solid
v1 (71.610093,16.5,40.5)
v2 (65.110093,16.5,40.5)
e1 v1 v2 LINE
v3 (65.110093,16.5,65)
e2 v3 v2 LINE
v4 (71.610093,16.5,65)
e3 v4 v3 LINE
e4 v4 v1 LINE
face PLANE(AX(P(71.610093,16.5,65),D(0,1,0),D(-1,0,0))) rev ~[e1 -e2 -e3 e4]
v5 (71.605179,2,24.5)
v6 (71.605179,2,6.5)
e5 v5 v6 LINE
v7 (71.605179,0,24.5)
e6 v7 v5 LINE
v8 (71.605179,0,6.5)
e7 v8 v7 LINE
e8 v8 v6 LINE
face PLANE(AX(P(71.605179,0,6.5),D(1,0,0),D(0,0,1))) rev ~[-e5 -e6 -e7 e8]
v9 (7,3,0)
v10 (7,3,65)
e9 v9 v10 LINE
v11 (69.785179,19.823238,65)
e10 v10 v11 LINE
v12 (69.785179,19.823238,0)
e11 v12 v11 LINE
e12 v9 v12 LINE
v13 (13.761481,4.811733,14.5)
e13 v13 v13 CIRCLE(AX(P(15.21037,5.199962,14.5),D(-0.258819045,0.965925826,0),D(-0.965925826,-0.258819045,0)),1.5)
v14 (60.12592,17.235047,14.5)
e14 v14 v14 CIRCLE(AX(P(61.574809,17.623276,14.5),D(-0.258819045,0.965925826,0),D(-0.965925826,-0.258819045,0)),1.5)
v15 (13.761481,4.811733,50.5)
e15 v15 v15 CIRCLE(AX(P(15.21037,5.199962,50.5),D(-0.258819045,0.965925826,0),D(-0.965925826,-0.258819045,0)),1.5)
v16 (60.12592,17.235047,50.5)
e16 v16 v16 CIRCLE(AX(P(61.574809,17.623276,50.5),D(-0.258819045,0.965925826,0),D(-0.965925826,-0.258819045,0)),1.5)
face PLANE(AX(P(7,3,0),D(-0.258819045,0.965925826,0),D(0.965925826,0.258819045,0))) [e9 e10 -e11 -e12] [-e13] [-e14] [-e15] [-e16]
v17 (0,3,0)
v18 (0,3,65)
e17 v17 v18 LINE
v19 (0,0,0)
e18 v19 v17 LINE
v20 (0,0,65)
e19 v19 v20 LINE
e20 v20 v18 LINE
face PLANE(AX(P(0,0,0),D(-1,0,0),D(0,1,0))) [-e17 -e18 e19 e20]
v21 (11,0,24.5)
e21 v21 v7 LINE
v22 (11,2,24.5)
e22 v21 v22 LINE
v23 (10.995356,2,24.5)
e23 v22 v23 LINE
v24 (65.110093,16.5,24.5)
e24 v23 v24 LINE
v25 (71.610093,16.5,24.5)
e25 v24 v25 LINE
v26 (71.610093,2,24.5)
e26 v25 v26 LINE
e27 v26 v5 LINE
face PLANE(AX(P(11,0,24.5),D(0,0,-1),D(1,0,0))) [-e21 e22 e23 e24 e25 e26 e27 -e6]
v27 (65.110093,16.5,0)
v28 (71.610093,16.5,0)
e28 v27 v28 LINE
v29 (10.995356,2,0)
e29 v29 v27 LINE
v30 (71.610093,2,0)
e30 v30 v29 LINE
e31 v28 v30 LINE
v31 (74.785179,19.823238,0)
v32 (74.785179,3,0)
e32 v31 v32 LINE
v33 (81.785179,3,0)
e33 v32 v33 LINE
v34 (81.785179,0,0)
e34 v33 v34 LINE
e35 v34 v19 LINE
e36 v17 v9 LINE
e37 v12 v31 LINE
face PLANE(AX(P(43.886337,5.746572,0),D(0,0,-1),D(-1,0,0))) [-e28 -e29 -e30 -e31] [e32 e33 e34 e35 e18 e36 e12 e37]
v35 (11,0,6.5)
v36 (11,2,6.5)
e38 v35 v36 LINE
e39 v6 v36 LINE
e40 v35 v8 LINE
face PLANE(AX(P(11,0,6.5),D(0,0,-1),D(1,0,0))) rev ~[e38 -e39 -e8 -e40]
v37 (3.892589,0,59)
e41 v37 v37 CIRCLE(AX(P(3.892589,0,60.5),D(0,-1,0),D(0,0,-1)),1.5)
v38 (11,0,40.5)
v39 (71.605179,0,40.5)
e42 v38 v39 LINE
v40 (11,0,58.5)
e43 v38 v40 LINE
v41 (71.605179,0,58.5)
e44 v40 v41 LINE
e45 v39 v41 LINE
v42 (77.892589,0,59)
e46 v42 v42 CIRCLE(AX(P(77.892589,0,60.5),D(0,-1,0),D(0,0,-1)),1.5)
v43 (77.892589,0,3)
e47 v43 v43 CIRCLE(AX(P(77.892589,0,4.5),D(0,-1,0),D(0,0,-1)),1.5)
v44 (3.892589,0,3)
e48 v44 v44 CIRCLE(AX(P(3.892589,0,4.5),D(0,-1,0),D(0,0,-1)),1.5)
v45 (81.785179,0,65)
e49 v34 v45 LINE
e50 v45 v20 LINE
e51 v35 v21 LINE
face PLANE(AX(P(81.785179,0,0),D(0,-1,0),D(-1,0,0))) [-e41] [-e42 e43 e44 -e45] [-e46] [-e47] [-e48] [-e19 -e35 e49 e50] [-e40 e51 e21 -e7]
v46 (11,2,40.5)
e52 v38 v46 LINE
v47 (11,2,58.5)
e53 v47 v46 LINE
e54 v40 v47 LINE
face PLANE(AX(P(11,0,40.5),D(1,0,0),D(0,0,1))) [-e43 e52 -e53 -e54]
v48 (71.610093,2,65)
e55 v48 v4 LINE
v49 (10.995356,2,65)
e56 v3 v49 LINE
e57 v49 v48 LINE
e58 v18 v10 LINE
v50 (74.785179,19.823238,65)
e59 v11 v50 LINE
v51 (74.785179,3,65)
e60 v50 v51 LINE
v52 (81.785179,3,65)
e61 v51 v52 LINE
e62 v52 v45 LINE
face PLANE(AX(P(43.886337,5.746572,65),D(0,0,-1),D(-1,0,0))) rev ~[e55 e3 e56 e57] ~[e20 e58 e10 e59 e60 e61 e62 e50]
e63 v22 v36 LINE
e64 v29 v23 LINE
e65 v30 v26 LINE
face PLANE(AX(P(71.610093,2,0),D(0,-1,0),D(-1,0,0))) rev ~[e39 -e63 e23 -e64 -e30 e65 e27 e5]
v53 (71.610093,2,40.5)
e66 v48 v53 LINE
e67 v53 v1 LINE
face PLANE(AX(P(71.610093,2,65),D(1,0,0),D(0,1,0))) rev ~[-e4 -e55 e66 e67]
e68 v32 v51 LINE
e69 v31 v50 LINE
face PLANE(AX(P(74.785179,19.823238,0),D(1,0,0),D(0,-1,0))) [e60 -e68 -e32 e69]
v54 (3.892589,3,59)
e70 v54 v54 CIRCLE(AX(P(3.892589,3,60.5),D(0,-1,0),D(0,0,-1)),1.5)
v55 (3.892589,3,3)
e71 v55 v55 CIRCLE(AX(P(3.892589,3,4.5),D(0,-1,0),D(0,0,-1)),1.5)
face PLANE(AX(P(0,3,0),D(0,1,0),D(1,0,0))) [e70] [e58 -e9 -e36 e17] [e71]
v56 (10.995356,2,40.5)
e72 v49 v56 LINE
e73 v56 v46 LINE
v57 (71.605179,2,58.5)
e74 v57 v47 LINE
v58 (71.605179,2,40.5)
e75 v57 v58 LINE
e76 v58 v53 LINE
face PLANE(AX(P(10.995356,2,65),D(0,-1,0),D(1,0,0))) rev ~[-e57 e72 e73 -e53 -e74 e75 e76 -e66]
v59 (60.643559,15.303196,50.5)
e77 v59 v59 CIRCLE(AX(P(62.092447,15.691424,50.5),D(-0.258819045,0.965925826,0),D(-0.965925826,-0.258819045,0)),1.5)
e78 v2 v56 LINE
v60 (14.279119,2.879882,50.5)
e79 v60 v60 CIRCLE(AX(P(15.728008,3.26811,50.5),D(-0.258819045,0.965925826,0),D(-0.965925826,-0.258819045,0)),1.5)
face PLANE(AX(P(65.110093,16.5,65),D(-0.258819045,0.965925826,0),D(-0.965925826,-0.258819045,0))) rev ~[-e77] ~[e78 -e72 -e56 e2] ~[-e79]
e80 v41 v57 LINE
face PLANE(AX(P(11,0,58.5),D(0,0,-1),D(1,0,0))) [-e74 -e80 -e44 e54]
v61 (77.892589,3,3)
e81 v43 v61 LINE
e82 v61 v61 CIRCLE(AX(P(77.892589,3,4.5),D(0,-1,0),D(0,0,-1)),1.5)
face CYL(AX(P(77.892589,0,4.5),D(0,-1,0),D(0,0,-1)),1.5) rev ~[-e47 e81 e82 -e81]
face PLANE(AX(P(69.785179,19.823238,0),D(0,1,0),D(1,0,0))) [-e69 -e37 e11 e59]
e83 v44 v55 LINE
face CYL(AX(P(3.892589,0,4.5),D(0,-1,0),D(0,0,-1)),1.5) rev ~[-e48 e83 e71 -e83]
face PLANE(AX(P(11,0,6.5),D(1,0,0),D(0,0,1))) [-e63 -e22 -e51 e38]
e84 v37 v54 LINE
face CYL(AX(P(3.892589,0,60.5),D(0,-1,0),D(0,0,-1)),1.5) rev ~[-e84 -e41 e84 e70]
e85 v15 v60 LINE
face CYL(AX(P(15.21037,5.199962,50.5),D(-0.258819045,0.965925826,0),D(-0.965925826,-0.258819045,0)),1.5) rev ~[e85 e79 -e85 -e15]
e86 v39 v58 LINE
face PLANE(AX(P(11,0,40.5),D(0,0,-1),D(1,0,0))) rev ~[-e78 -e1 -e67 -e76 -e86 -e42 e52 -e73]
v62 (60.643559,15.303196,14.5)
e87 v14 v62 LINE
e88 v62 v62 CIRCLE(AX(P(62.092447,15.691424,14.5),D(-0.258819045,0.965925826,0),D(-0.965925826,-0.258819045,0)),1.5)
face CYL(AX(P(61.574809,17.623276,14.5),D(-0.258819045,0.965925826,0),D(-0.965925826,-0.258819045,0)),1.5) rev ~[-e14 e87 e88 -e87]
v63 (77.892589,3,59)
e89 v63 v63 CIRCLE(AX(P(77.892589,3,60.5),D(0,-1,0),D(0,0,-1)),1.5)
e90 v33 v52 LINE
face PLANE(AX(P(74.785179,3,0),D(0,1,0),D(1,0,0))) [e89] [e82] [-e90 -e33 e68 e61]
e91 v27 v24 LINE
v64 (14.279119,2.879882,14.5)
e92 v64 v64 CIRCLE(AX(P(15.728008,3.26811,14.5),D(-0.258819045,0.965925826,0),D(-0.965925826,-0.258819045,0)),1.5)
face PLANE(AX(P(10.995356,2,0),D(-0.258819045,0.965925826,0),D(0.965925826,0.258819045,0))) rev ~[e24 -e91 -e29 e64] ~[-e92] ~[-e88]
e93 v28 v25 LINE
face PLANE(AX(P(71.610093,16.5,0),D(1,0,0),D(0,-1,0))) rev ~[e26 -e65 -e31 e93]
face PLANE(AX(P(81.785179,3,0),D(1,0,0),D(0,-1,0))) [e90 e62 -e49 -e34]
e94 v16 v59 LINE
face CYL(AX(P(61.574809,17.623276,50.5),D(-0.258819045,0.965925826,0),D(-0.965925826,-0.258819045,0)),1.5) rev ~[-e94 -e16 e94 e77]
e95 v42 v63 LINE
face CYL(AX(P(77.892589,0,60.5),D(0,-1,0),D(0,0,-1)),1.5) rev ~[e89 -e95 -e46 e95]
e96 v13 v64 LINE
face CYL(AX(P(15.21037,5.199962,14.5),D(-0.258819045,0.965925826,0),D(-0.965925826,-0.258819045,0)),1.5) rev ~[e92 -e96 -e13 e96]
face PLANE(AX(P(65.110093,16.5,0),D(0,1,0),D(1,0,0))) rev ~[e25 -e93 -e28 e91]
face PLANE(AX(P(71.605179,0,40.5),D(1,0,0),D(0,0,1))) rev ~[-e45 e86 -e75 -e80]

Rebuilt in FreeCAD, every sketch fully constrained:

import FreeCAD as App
import Part
import Sketcher

V = App.Vector
Q = App.Units.Quantity

doc = App.newDocument("Part")
body = doc.addObject("PartDesign::Body", "Body")

sketch1 = body.newObject("Sketcher::SketchObject", "Sketch")
sketch1.AttachmentSupport = (doc.getObject("XY_Plane"), [""])
sketch1.MapMode = "FlatFace"
sketch1.addGeometry(Part.LineSegment(V(0, 3, 0), V(0, 0, 0)), False)
sketch1.addGeometry(Part.LineSegment(V(0, 0, 0), V(81.8, 0, 0)), False)
sketch1.addGeometry(Part.LineSegment(V(81.8, 0, 0), V(81.8, 3, 0)), False)
sketch1.addGeometry(Part.LineSegment(V(81.8, 3, 0), V(74.8, 3, 0)), False)
sketch1.addGeometry(Part.LineSegment(V(74.8, 3, 0), V(74.8, 19.8, 0)), False)
sketch1.addGeometry(Part.LineSegment(V(74.8, 19.8, 0), V(69.8, 19.8, 0)), False)
sketch1.addGeometry(Part.LineSegment(V(69.8, 19.8, 0), V(7, 3, 0)), False)
sketch1.addGeometry(Part.LineSegment(V(7, 3, 0), V(0, 3, 0)), False)
sketch1.addConstraint(Sketcher.Constraint("Coincident", 0, 2, 1, 1))
sketch1.addConstraint(Sketcher.Constraint("Coincident", 1, 2, 2, 1))
sketch1.addConstraint(Sketcher.Constraint("Coincident", 2, 2, 3, 1))
sketch1.addConstraint(Sketcher.Constraint("Coincident", 3, 2, 4, 1))
sketch1.addConstraint(Sketcher.Constraint("Coincident", 4, 2, 5, 1))
sketch1.addConstraint(Sketcher.Constraint("Coincident", 5, 2, 6, 1))
sketch1.addConstraint(Sketcher.Constraint("Coincident", 6, 2, 7, 1))
sketch1.addConstraint(Sketcher.Constraint("Coincident", 7, 2, 0, 1))
sketch1.addConstraint(Sketcher.Constraint("Vertical", 0))
sketch1.addConstraint(Sketcher.Constraint("Horizontal", 1))
sketch1.addConstraint(Sketcher.Constraint("Vertical", 2))
sketch1.addConstraint(Sketcher.Constraint("Horizontal", 3))
sketch1.addConstraint(Sketcher.Constraint("Vertical", 4))
sketch1.addConstraint(Sketcher.Constraint("Horizontal", 5))
sketch1.addConstraint(Sketcher.Constraint("Horizontal", 7))
sketch1.addConstraint(Sketcher.Constraint("Coincident", 0, 2, -1, 1))
sketch1.addConstraint(Sketcher.Constraint("Horizontal", 3, 2, 6, 2))
sketch1.addConstraint(Sketcher.Constraint("Equal", 3, 7))
sketch1.addConstraint(Sketcher.Constraint("DistanceX", 3, 2, 3, 1, 7.0))
sketch1.addConstraint(Sketcher.Constraint("DistanceX", 5, 2, 5, 1, 5.0))
sketch1.addConstraint(Sketcher.Constraint("DistanceY", 0, 2, 0, 1, 3.0))
sketch1.addConstraint(Sketcher.Constraint("Angle", 6, Q("-165 deg")))
sketch1.addConstraint(Sketcher.Constraint("Distance", 6, 65.0))
pad1 = body.newObject("PartDesign::Pad", "Pad")
pad1.Profile = sketch1
pad1.Length = 65

sketch2 = body.newObject("Sketcher::SketchObject", "Sketch001")
sketch2.AttachmentSupport = (doc.getObject("XY_Plane"), [""])
sketch2.MapMode = "FlatFace"
sketch2.AttachmentOffset = App.Placement(V(0, 0, 65), App.Rotation())
sketch2.addGeometry(Part.LineSegment(V(65, 16, 0), V(11, 2, 0)), False)
sketch2.addGeometry(Part.LineSegment(V(11, 2, 0), V(72, 2, 0)), False)
sketch2.addGeometry(Part.LineSegment(V(72, 2, 0), V(72, 16, 0)), False)
sketch2.addGeometry(Part.LineSegment(V(72, 16, 0), V(65, 16, 0)), False)
sketch2.addConstraint(Sketcher.Constraint("Coincident", 0, 2, 1, 1))
sketch2.addConstraint(Sketcher.Constraint("Coincident", 1, 2, 2, 1))
sketch2.addConstraint(Sketcher.Constraint("Coincident", 2, 2, 3, 1))
sketch2.addConstraint(Sketcher.Constraint("Coincident", 3, 2, 0, 1))
sketch2.addConstraint(Sketcher.Constraint("Horizontal", 1))
sketch2.addConstraint(Sketcher.Constraint("Vertical", 2))
sketch2.addConstraint(Sketcher.Constraint("Horizontal", 3))
sketch2.addConstraint(Sketcher.Constraint("Angle", 0, Q("-165 deg")))
sketch2.addConstraint(Sketcher.Constraint("DistanceX", 3, 2, 3, 1, 6.5))
sketch2.addConstraint(Sketcher.Constraint("DistanceY", 2, 1, 2, 2, 14.5))
sketch2.addConstraint(Sketcher.Constraint("DistanceY", -1, 1, 0, 2, 2.0))
sketch2.addConstraint(Sketcher.Constraint("DistanceX", -1, 1, 0, 2, 10.995356))
pocket1 = body.newObject("PartDesign::Pocket", "Pocket")
pocket1.Profile = sketch2
pocket1.Length = 24.5

sketch3 = body.newObject("Sketcher::SketchObject", "Sketch002")
sketch3.AttachmentSupport = (doc.getObject("XY_Plane"), [""])
sketch3.MapMode = "FlatFace"
sketch3.addGeometry(Part.LineSegment(V(72, 2, 0), V(11, 2, 0)), False)
sketch3.addGeometry(Part.LineSegment(V(11, 2, 0), V(65, 16, 0)), False)
sketch3.addGeometry(Part.LineSegment(V(65, 16, 0), V(72, 16, 0)), False)
sketch3.addGeometry(Part.LineSegment(V(72, 16, 0), V(72, 2, 0)), False)
sketch3.addConstraint(Sketcher.Constraint("Coincident", 0, 2, 1, 1))
sketch3.addConstraint(Sketcher.Constraint("Coincident", 1, 2, 2, 1))
sketch3.addConstraint(Sketcher.Constraint("Coincident", 2, 2, 3, 1))
sketch3.addConstraint(Sketcher.Constraint("Coincident", 3, 2, 0, 1))
sketch3.addConstraint(Sketcher.Constraint("Horizontal", 0))
sketch3.addConstraint(Sketcher.Constraint("Horizontal", 2))
sketch3.addConstraint(Sketcher.Constraint("Vertical", 3))
sketch3.addConstraint(Sketcher.Constraint("Angle", 1, Q("15 deg")))
sketch3.addConstraint(Sketcher.Constraint("DistanceX", 2, 1, 2, 2, 6.5))
sketch3.addConstraint(Sketcher.Constraint("DistanceY", 3, 2, 3, 1, 14.5))
sketch3.addConstraint(Sketcher.Constraint("DistanceY", -1, 1, 0, 2, 2.0))
sketch3.addConstraint(Sketcher.Constraint("DistanceX", -1, 1, 0, 2, 10.995356))
pocket2 = body.newObject("PartDesign::Pocket", "Pocket001")
pocket2.Profile = sketch3
pocket2.Length = 24.5
pocket2.Reversed = True

sketch4 = body.newObject("Sketcher::SketchObject", "Sketch003")
sketch4.AttachmentSupport = (doc.getObject("XZ_Plane"), [""])
sketch4.MapMode = "FlatFace"
sketch4.addGeometry(Part.Circle(V(3.9, 60.5, 0), V(0, 0, 1), 1.5), False)
sketch4.addConstraint(Sketcher.Constraint("Diameter", 0, 3.0))
sketch4.addConstraint(Sketcher.Constraint("DistanceY", -1, 1, 0, 3, 60.5))
sketch4.addConstraint(Sketcher.Constraint("DistanceX", -1, 1, 0, 3, 3.892589))
pocket3 = body.newObject("PartDesign::Pocket", "Pocket002")
pocket3.Profile = sketch4
pocket3.Type = "UpToFirst"

sketch5 = body.newObject("Sketcher::SketchObject", "Sketch004")
sketch5.AttachmentSupport = (doc.getObject("XZ_Plane"), [""])
sketch5.MapMode = "FlatFace"
sketch5.addGeometry(Part.Circle(V(77.9, 60.5, 0), V(0, 0, 1), 1.5), False)
sketch5.addConstraint(Sketcher.Constraint("Diameter", 0, 3.0))
sketch5.addConstraint(Sketcher.Constraint("DistanceY", -1, 1, 0, 3, 60.5))
sketch5.addConstraint(Sketcher.Constraint("DistanceX", -1, 1, 0, 3, 77.892589))
pocket4 = body.newObject("PartDesign::Pocket", "Pocket003")
pocket4.Profile = sketch5
pocket4.Type = "UpToFirst"

sketch6 = body.newObject("Sketcher::SketchObject", "Sketch005")
sketch6.AttachmentSupport = (doc.getObject("XZ_Plane"), [""])
sketch6.MapMode = "FlatFace"
sketch6.addGeometry(Part.Circle(V(77.9, 4.5, 0), V(0, 0, 1), 1.5), False)
sketch6.addConstraint(Sketcher.Constraint("Diameter", 0, 3.0))
sketch6.addConstraint(Sketcher.Constraint("DistanceY", -1, 1, 0, 3, 4.5))
sketch6.addConstraint(Sketcher.Constraint("DistanceX", -1, 1, 0, 3, 77.892589))
pocket5 = body.newObject("PartDesign::Pocket", "Pocket004")
pocket5.Profile = sketch6
pocket5.Type = "UpToFirst"

sketch7 = body.newObject("Sketcher::SketchObject", "Sketch006")
sketch7.AttachmentSupport = (doc.getObject("XZ_Plane"), [""])
sketch7.MapMode = "FlatFace"
sketch7.addGeometry(Part.Circle(V(3.9, 4.5, 0), V(0, 0, 1), 1.5), False)
sketch7.addConstraint(Sketcher.Constraint("Diameter", 0, 3.0))
sketch7.addConstraint(Sketcher.Constraint("DistanceY", -1, 1, 0, 3, 4.5))
sketch7.addConstraint(Sketcher.Constraint("DistanceX", -1, 1, 0, 3, 3.892589))
pocket6 = body.newObject("PartDesign::Pocket", "Pocket005")
pocket6.Profile = sketch7
pocket6.Type = "UpToFirst"

sketch8 = body.newObject("Sketcher::SketchObject", "Sketch007")
sketch8.AttachmentSupport = (doc.getObject("XZ_Plane"), [""])
sketch8.MapMode = "FlatFace"
sketch8.addGeometry(Part.LineSegment(V(11, 58, 0), V(11, 40, 0)), False)
sketch8.addGeometry(Part.LineSegment(V(11, 40, 0), V(72, 40, 0)), False)
sketch8.addGeometry(Part.LineSegment(V(72, 40, 0), V(72, 58, 0)), False)
sketch8.addGeometry(Part.LineSegment(V(72, 58, 0), V(11, 58, 0)), False)
sketch8.addConstraint(Sketcher.Constraint("Coincident", 0, 2, 1, 1))
sketch8.addConstraint(Sketcher.Constraint("Coincident", 1, 2, 2, 1))
sketch8.addConstraint(Sketcher.Constraint("Coincident", 2, 2, 3, 1))
sketch8.addConstraint(Sketcher.Constraint("Coincident", 3, 2, 0, 1))
sketch8.addConstraint(Sketcher.Constraint("Vertical", 0))
sketch8.addConstraint(Sketcher.Constraint("Horizontal", 1))
sketch8.addConstraint(Sketcher.Constraint("Vertical", 2))
sketch8.addConstraint(Sketcher.Constraint("Horizontal", 3))
sketch8.addConstraint(Sketcher.Constraint("DistanceY", 0, 2, 0, 1, 18.0))
sketch8.addConstraint(Sketcher.Constraint("DistanceX", -1, 1, 0, 2, 11.0))
sketch8.addConstraint(Sketcher.Constraint("DistanceY", -1, 1, 0, 2, 40.5))
sketch8.addConstraint(Sketcher.Constraint("DistanceX", 1, 1, 1, 2, 60.605179))
pocket7 = body.newObject("PartDesign::Pocket", "Pocket006")
pocket7.Profile = sketch8
pocket7.Type = "UpToFirst"

sketch9 = body.newObject("Sketcher::SketchObject", "Sketch008")
sketch9.AttachmentSupport = (doc.getObject("XZ_Plane"), [""])
sketch9.MapMode = "FlatFace"
sketch9.addGeometry(Part.LineSegment(V(11, 24, 0), V(11, 6, 0)), False)
sketch9.addGeometry(Part.LineSegment(V(11, 6, 0), V(72, 6, 0)), False)
sketch9.addGeometry(Part.LineSegment(V(72, 6, 0), V(72, 24, 0)), False)
sketch9.addGeometry(Part.LineSegment(V(72, 24, 0), V(11, 24, 0)), False)
sketch9.addConstraint(Sketcher.Constraint("Coincident", 0, 2, 1, 1))
sketch9.addConstraint(Sketcher.Constraint("Coincident", 1, 2, 2, 1))
sketch9.addConstraint(Sketcher.Constraint("Coincident", 2, 2, 3, 1))
sketch9.addConstraint(Sketcher.Constraint("Coincident", 3, 2, 0, 1))
sketch9.addConstraint(Sketcher.Constraint("Vertical", 0))
sketch9.addConstraint(Sketcher.Constraint("Horizontal", 1))
sketch9.addConstraint(Sketcher.Constraint("Vertical", 2))
sketch9.addConstraint(Sketcher.Constraint("Horizontal", 3))
sketch9.addConstraint(Sketcher.Constraint("DistanceY", 0, 2, 0, 1, 18.0))
sketch9.addConstraint(Sketcher.Constraint("DistanceX", -1, 1, 0, 2, 11.0))
sketch9.addConstraint(Sketcher.Constraint("DistanceY", -1, 1, 0, 2, 6.5))
sketch9.addConstraint(Sketcher.Constraint("DistanceX", 1, 1, 1, 2, 60.605179))
pocket8 = body.newObject("PartDesign::Pocket", "Pocket007")
pocket8.Profile = sketch9
pocket8.Type = "UpToFirst"

sketch10 = body.newObject("Sketcher::SketchObject", "Sketch009")
sketch10.Placement = App.Placement(V(-0.281089, 1.049038, 0), App.Rotation(V(0.965925826, 0.258819045, 0), V(0, 0, -0.999999999), V(-0.258819045, 0.965925826, 0), "ZXY"))
sketch10.addGeometry(Part.Circle(V(16, -14.5, 0), V(0, 0, 1), 1.5), False)
sketch10.addConstraint(Sketcher.Constraint("Diameter", 0, 3.0))
sketch10.addConstraint(Sketcher.Constraint("DistanceY", 0, 3, -1, 1, 14.5))
sketch10.addConstraint(Sketcher.Constraint("DistanceX", -1, 1, 0, 3, 16.037938))
pocket9 = body.newObject("PartDesign::Pocket", "Pocket008")
pocket9.Profile = sketch10
pocket9.Type = "UpToFirst"

sketch11 = body.newObject("Sketcher::SketchObject", "Sketch010")
sketch11.Placement = App.Placement(V(-0.281089, 1.049038, 0), App.Rotation(V(0.965925826, 0.258819045, 0), V(0, 0, -0.999999999), V(-0.258819045, 0.965925826, 0), "ZXY"))
sketch11.addGeometry(Part.Circle(V(64, -14.5, 0), V(0, 0, 1), 1.5), False)
sketch11.addConstraint(Sketcher.Constraint("Diameter", 0, 3.0))
sketch11.addConstraint(Sketcher.Constraint("DistanceY", 0, 3, -1, 1, 14.5))
sketch11.addConstraint(Sketcher.Constraint("DistanceX", -1, 1, 0, 3, 64.037938))
pocket10 = body.newObject("PartDesign::Pocket", "Pocket009")
pocket10.Profile = sketch11
pocket10.Type = "UpToFirst"

sketch12 = body.newObject("Sketcher::SketchObject", "Sketch011")
sketch12.Placement = App.Placement(V(-0.281089, 1.049038, 0), App.Rotation(V(0.965925826, 0.258819045, 0), V(0, 0, -0.999999999), V(-0.258819045, 0.965925826, 0), "ZXY"))
sketch12.addGeometry(Part.Circle(V(64, -50.5, 0), V(0, 0, 1), 1.5), False)
sketch12.addConstraint(Sketcher.Constraint("Diameter", 0, 3.0))
sketch12.addConstraint(Sketcher.Constraint("DistanceY", 0, 3, -1, 1, 50.5))
sketch12.addConstraint(Sketcher.Constraint("DistanceX", -1, 1, 0, 3, 64.037938))
pocket11 = body.newObject("PartDesign::Pocket", "Pocket010")
pocket11.Profile = sketch12
pocket11.Type = "UpToFirst"

sketch13 = body.newObject("Sketcher::SketchObject", "Sketch012")
sketch13.Placement = App.Placement(V(-0.281089, 1.049038, 0), App.Rotation(V(0.965925826, 0.258819045, 0), V(0, 0, -0.999999999), V(-0.258819045, 0.965925826, 0), "ZXY"))
sketch13.addGeometry(Part.Circle(V(16, -50.5, 0), V(0, 0, 1), 1.5), False)
sketch13.addConstraint(Sketcher.Constraint("Diameter", 0, 3.0))
sketch13.addConstraint(Sketcher.Constraint("DistanceY", 0, 3, -1, 1, 50.5))
sketch13.addConstraint(Sketcher.Constraint("DistanceX", -1, 1, 0, 3, 16.037938))
pocket12 = body.newObject("PartDesign::Pocket", "Pocket011")
pocket12.Profile = sketch13
pocket12.Type = "UpToFirst"

doc.recompute()
